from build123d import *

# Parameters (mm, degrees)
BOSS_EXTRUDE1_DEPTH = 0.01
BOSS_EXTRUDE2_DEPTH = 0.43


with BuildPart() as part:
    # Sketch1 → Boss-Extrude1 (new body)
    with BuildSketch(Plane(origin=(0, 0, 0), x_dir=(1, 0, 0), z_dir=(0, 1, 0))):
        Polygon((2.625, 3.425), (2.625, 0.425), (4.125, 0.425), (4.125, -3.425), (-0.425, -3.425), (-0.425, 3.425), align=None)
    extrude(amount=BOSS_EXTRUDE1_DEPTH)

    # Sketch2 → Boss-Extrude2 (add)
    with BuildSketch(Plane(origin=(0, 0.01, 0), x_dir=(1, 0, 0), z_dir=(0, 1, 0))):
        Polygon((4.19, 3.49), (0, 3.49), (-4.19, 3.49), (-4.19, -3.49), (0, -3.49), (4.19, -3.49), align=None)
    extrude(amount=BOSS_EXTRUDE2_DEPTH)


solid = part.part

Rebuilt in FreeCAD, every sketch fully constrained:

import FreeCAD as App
import Part
import Sketcher
from FreeCAD import Vector
Q = App.Units.Quantity

doc = App.newDocument("Part")
body = doc.addObject("PartDesign::Body", "Body")

# Sketch on XZ plane
sketch1 = body.newObject("Sketcher::SketchObject", "Sketch")
sketch1.AttachmentSupport = (doc.getObject("XZ_Plane"), [""])
sketch1.MapMode = "FlatFace"
sketch1.addGeometry(Part.LineSegment(Vector(2.6, -0.4, 0), Vector(2.6, -3.4, 0)), False)
sketch1.addGeometry(Part.LineSegment(Vector(2.6, -3.4, 0), Vector(-0.4, -3.4, 0)), False)
sketch1.addGeometry(Part.LineSegment(Vector(-0.4, -3.4, 0), Vector(-0.4, 3.4, 0)), False)
sketch1.addGeometry(Part.LineSegment(Vector(-0.4, 3.4, 0), Vector(4.1, 3.4, 0)), False)
sketch1.addGeometry(Part.LineSegment(Vector(4.1, 3.4, 0), Vector(4.1, -0.4, 0)), False)
sketch1.addGeometry(Part.LineSegment(Vector(4.1, -0.4, 0), Vector(2.6, -0.4, 0)), False)
sketch1.addConstraint(Sketcher.Constraint("Coincident", 0, 2, 1, 1))
sketch1.addConstraint(Sketcher.Constraint("Coincident", 1, 2, 2, 1))
sketch1.addConstraint(Sketcher.Constraint("Coincident", 2, 2, 3, 1))
sketch1.addConstraint(Sketcher.Constraint("Coincident", 3, 2, 4, 1))
sketch1.addConstraint(Sketcher.Constraint("Coincident", 4, 2, 5, 1))
sketch1.addConstraint(Sketcher.Constraint("Coincident", 5, 2, 0, 1))
sketch1.addConstraint(Sketcher.Constraint("Vertical", 0))
sketch1.addConstraint(Sketcher.Constraint("Horizontal", 1))
sketch1.addConstraint(Sketcher.Constraint("Vertical", 2))
sketch1.addConstraint(Sketcher.Constraint("Horizontal", 3))
sketch1.addConstraint(Sketcher.Constraint("Vertical", 4))
sketch1.addConstraint(Sketcher.Constraint("Horizontal", 5))
sketch1.addConstraint(Sketcher.Constraint("DistanceY", 0, 2, 0, 1, Q("3 mm")))
sketch1.addConstraint(Sketcher.Constraint("DistanceX", 5, 2, 5, 1, Q("1.5 mm")))
sketch1.addConstraint(Sketcher.Constraint("DistanceX", 1, 2, 1, 1, Q("3.05 mm")))
sketch1.addConstraint(Sketcher.Constraint("DistanceY", 2, 1, 2, 2, Q("6.85 mm")))
sketch1.addConstraint(Sketcher.Constraint("DistanceX", -1, 1, 0, 2, Q("2.625 mm")))
sketch1.addConstraint(Sketcher.Constraint("DistanceY", 0, 2, -1, 1, Q("3.425 mm")))
pad1 = body.newObject("PartDesign::Pad", "Pad")
pad1.Profile = sketch1
pad1.Length = 0.01
pad1.Reversed = True

# Sketch on XZ plane
sketch2 = body.newObject("Sketcher::SketchObject", "Sketch001")
sketch2.AttachmentSupport = (doc.getObject("XZ_Plane"), [""])
sketch2.MapMode = "FlatFace"
sketch2.AttachmentOffset = App.Placement(Vector(0, 0, -0.01), App.Rotation())
sketch2.addGeometry(Part.LineSegment(Vector(4, -3, 0), Vector(-4, -3, 0)), False)
sketch2.addGeometry(Part.LineSegment(Vector(-4, -3, 0), Vector(-4, 3, 0)), False)
sketch2.addGeometry(Part.LineSegment(Vector(-4, 3, 0), Vector(4, 3, 0)), False)
sketch2.addGeometry(Part.LineSegment(Vector(4, 3, 0), Vector(4, -3, 0)), False)
sketch2.addConstraint(Sketcher.Constraint("Coincident", 0, 2, 1, 1))
sketch2.addConstraint(Sketcher.Constraint("Coincident", 1, 2, 2, 1))
sketch2.addConstraint(Sketcher.Constraint("Coincident", 2, 2, 3, 1))
sketch2.addConstraint(Sketcher.Constraint("Coincident", 3, 2, 0, 1))
sketch2.addConstraint(Sketcher.Constraint("Horizontal", 0))
sketch2.addConstraint(Sketcher.Constraint("Vertical", 1))
sketch2.addConstraint(Sketcher.Constraint("Horizontal", 2))
sketch2.addConstraint(Sketcher.Constraint("Vertical", 3))
sketch2.addConstraint(Sketcher.Constraint("Symmetric", 0, 2, 2, 2, -1, 1))
sketch2.addConstraint(Sketcher.Constraint("DistanceX", 0, 2, 0, 1, Q("8.38 mm")))
sketch2.addConstraint(Sketcher.Constraint("DistanceY", 1, 1, 1, 2, Q("6.98 mm")))
pad2 = body.newObject("PartDesign::Pad", "Pad001")
pad2.Profile = sketch2
pad2.Length = 0.43
pad2.Reversed = True

doc.recompute()
